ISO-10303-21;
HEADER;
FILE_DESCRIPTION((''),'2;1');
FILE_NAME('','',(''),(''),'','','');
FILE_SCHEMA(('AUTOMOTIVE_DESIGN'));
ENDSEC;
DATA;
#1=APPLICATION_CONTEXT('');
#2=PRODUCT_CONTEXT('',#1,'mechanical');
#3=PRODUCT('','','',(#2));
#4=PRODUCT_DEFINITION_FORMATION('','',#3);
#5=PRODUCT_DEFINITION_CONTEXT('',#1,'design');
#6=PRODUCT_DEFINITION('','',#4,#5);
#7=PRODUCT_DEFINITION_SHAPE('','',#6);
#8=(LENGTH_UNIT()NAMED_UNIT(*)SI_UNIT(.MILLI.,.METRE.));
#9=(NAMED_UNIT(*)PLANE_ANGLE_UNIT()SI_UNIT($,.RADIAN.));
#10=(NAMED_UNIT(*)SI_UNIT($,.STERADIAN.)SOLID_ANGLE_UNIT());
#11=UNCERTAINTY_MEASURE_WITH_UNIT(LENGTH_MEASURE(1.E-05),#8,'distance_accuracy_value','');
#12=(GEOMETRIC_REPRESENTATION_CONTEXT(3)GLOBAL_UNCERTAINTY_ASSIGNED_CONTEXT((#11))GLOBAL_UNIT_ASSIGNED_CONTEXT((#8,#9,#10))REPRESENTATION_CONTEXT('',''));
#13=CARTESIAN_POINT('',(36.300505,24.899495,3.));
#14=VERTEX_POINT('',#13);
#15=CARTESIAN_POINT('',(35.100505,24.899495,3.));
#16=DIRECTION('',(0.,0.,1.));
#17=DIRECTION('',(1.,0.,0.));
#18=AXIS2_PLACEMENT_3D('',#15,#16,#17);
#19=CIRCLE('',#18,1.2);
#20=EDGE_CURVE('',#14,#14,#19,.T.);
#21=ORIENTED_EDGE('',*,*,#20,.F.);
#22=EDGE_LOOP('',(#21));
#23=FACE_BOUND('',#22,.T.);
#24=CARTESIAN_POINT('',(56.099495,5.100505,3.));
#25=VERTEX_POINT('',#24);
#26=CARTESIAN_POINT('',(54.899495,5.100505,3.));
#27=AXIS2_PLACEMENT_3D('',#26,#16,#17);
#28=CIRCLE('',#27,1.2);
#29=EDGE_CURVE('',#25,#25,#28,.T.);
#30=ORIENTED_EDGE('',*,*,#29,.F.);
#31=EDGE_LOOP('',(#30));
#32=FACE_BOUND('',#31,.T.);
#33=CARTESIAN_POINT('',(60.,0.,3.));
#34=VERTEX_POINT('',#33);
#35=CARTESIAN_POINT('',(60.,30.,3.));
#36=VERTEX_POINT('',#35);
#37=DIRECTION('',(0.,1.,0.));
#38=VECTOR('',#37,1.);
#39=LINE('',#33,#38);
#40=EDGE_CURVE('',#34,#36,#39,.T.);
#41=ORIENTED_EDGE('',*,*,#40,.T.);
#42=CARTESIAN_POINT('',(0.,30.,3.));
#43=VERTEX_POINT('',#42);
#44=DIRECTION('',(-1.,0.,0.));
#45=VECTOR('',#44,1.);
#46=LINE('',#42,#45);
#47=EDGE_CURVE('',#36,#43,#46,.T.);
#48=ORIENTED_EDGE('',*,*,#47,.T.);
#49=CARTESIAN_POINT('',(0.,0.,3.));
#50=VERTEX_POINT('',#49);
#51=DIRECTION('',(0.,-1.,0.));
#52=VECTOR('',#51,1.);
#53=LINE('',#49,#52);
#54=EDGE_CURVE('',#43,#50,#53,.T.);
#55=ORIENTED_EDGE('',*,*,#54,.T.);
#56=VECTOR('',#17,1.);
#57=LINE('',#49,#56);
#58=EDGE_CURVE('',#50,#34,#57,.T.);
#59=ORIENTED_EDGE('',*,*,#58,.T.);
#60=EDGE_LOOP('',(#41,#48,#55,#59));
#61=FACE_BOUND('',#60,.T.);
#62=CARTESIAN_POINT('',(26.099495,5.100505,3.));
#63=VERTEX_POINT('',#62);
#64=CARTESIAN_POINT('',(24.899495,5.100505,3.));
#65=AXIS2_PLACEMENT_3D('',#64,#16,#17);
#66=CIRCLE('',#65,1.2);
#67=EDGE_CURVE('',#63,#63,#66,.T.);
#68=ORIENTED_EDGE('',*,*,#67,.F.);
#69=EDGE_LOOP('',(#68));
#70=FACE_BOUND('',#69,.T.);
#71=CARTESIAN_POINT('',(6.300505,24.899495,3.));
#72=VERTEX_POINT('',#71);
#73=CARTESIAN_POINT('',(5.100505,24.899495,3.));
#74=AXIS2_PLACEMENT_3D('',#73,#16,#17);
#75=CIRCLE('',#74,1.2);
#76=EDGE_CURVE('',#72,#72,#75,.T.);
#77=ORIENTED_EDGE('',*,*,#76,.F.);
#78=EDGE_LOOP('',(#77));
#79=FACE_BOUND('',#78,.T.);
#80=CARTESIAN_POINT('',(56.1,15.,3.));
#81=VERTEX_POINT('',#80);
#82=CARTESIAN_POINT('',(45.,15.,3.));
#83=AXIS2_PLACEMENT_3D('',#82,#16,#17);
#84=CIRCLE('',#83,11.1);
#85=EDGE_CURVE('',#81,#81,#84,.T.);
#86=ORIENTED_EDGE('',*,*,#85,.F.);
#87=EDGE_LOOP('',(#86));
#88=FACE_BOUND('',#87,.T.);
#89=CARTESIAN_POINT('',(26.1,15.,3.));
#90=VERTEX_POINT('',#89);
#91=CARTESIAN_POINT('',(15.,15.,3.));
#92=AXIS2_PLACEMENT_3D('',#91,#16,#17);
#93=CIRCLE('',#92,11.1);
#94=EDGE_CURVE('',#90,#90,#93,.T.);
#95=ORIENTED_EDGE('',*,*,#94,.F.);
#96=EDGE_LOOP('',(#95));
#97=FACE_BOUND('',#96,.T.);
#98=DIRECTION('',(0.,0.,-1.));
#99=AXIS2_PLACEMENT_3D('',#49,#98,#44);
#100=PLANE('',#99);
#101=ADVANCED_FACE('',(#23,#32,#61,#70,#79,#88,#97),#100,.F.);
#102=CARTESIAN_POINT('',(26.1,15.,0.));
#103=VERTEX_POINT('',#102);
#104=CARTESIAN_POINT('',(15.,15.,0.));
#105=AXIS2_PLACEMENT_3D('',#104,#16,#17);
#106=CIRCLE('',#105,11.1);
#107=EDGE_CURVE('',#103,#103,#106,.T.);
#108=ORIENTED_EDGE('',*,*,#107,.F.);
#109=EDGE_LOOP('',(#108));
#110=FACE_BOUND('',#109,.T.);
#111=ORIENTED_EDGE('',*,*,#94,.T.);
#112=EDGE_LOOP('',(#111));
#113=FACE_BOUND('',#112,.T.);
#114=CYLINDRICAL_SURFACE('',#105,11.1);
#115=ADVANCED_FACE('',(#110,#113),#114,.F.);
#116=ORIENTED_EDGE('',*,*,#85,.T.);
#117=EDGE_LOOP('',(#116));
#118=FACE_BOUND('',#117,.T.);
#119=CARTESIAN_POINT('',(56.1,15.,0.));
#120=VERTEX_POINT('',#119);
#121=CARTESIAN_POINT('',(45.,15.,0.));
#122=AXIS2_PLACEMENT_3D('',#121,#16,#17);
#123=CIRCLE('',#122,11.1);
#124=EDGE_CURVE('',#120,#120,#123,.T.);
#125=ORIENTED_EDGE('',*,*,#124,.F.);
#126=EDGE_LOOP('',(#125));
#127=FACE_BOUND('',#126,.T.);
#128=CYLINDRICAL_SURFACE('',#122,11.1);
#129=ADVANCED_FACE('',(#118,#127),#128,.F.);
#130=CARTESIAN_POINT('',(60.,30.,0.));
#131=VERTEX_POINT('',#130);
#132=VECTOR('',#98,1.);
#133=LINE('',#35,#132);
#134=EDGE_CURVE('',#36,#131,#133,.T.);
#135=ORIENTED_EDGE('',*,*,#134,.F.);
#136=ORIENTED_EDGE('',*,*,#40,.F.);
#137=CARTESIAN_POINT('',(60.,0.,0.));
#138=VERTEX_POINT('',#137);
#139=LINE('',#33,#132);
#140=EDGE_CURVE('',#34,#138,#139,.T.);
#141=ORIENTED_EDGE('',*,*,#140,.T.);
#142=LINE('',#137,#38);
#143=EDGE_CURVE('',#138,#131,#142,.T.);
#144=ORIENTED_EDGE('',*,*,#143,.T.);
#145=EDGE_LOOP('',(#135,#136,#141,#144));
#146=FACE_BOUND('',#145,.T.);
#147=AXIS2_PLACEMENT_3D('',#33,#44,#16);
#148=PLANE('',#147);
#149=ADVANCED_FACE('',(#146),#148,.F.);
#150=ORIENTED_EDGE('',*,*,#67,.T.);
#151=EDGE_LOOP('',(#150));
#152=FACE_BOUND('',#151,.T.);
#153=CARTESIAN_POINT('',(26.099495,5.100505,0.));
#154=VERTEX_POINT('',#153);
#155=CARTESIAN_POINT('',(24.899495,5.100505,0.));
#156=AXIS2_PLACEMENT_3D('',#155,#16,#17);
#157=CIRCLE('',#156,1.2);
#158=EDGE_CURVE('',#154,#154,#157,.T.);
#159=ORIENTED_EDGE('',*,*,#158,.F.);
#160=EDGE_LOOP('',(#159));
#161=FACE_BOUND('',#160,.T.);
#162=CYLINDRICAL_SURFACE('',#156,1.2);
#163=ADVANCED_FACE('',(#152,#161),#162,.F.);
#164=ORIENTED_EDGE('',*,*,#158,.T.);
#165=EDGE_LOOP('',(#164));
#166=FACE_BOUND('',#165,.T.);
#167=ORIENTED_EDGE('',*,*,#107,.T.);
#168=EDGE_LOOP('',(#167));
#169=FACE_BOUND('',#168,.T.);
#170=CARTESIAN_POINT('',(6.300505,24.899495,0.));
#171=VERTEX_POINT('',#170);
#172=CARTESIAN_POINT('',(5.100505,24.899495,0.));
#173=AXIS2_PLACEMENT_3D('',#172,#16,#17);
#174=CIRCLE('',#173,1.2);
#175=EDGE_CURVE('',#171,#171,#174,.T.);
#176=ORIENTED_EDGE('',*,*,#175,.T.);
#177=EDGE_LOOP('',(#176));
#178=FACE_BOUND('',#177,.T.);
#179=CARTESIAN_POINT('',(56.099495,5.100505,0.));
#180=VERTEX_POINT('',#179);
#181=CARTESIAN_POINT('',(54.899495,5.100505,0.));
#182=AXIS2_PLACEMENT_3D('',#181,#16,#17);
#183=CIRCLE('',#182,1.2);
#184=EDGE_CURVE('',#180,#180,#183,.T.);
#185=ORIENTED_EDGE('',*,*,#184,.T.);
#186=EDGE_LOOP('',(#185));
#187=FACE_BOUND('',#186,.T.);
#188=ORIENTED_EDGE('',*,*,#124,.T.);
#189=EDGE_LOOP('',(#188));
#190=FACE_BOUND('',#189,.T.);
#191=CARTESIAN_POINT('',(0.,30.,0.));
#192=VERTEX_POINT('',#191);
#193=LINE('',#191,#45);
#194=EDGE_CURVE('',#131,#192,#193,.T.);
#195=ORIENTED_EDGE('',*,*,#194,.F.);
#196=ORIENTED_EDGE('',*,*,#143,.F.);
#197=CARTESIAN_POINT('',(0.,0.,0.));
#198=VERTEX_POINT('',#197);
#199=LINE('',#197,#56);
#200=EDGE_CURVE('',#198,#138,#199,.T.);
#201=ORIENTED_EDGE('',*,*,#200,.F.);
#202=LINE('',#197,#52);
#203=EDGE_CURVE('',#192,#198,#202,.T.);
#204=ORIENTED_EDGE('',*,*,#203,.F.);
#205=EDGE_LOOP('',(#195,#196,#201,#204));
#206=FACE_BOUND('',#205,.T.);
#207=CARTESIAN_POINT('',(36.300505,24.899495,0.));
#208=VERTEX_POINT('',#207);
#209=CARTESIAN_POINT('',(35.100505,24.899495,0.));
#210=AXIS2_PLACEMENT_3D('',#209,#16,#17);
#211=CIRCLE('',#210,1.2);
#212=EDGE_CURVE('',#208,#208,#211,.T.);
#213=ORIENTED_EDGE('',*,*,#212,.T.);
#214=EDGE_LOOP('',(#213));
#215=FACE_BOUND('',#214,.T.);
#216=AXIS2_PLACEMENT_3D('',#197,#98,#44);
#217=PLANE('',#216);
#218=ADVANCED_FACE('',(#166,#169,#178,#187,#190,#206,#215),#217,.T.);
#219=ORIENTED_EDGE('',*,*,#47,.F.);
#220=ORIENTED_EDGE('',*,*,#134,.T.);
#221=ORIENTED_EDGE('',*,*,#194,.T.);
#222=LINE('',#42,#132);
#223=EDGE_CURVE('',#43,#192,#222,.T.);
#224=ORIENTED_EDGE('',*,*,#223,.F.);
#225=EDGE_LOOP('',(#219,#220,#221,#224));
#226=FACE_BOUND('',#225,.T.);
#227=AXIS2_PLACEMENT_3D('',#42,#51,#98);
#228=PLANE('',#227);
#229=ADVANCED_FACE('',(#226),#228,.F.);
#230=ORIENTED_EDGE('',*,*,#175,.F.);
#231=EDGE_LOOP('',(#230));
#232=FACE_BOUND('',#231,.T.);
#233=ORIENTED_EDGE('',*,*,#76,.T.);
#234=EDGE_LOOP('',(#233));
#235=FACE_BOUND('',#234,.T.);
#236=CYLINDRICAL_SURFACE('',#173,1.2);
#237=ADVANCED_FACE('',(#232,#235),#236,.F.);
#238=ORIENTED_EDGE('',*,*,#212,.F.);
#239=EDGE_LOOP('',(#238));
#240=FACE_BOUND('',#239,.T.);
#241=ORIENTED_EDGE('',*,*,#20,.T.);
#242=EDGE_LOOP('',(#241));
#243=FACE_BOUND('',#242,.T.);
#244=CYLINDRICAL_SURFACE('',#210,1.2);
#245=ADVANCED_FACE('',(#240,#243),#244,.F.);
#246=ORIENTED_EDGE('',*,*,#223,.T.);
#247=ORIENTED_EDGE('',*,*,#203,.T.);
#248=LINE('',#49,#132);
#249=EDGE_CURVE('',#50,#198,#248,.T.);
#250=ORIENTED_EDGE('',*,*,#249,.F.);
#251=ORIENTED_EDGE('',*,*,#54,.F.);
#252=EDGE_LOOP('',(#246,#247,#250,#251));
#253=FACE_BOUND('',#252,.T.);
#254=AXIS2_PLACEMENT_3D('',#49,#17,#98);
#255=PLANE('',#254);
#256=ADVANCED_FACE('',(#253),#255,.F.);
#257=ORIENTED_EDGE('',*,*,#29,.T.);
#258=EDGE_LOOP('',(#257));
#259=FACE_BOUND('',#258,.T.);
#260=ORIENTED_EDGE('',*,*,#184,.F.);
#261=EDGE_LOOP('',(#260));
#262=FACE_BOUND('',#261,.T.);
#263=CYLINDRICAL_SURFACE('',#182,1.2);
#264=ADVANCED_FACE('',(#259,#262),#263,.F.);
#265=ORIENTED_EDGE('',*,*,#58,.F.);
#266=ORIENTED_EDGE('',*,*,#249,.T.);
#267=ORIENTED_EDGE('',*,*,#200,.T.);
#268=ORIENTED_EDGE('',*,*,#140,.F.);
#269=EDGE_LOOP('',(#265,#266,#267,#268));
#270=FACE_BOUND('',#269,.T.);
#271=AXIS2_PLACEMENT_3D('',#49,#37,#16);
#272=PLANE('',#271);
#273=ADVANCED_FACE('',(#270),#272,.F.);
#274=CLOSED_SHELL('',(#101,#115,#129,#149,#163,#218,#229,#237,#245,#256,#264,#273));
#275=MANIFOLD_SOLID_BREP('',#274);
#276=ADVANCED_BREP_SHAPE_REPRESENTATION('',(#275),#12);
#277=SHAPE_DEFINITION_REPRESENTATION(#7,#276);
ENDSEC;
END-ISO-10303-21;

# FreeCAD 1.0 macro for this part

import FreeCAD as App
import Part
import Sketcher

V = App.Vector
Q = App.Units.Quantity

doc = App.newDocument("Part")
body = doc.addObject("PartDesign::Body", "Body")

sketch1 = body.newObject("Sketcher::SketchObject", "Sketch")
sketch1.AttachmentSupport = (doc.getObject("XY_Plane"), [""])
sketch1.MapMode = "FlatFace"
sketch1.addGeometry(Part.LineSegment(V(0, 30, 0), V(0, 0, 0)), False)
sketch1.addGeometry(Part.LineSegment(V(0, 0, 0), V(60, 0, 0)), False)
sketch1.addGeometry(Part.LineSegment(V(60, 0, 0), V(60, 30, 0)), False)
sketch1.addGeometry(Part.LineSegment(V(60, 30, 0), V(0, 30, 0)), False)
sketch1.addConstraint(Sketcher.Constraint("Coincident", 0, 2, 1, 1))
sketch1.addConstraint(Sketcher.Constraint("Coincident", 1, 2, 2, 1))
sketch1.addConstraint(Sketcher.Constraint("Coincident", 2, 2, 3, 1))
sketch1.addConstraint(Sketcher.Constraint("Coincident", 3, 2, 0, 1))
sketch1.addConstraint(Sketcher.Constraint("Vertical", 0))
sketch1.addConstraint(Sketcher.Constraint("Horizontal", 1))
sketch1.addConstraint(Sketcher.Constraint("Vertical", 2))
sketch1.addConstraint(Sketcher.Constraint("Horizontal", 3))
sketch1.addConstraint(Sketcher.Constraint("Coincident", 0, 2, -1, 1))
sketch1.addConstraint(Sketcher.Constraint("DistanceX", 1, 1, 1, 2, Q("60 mm")))
sketch1.addConstraint(Sketcher.Constraint("DistanceY", 0, 2, 0, 1, Q("30 mm")))
pad1 = body.newObject("PartDesign::Pad", "Pad")
pad1.Profile = sketch1
pad1.Length = 3

sketch2 = body.newObject("Sketcher::SketchObject", "Sketch001")
sketch2.AttachmentSupport = (doc.getObject("XY_Plane"), [""])
sketch2.MapMode = "FlatFace"
sketch2.AttachmentOffset = App.Placement(V(0, 0, 3), App.Rotation())
sketch2.addGeometry(Part.Circle(V(15, 15, 0), V(0, 0, 1), 11.1), False)
sketch2.addGeometry(Part.Circle(V(45, 15, 0), V(0, 0, 1), 11.1), False)
sketch2.addGeometry(Part.Circle(V(5.100505, 24.899495, 0), V(0, 0, 1), 1.2), False)
sketch2.addGeometry(Part.Circle(V(24.899495, 5.100505, 0), V(0, 0, 1), 1.2), False)
sketch2.addGeometry(Part.Circle(V(35.100505, 24.899495, 0), V(0, 0, 1), 1.2), False)
sketch2.addGeometry(Part.Circle(V(54.899495, 5.100505, 0), V(0, 0, 1), 1.2), False)
sketch2.addConstraint(Sketcher.Constraint("Equal", 0, 1))
sketch2.addConstraint(Sketcher.Constraint("Equal", 2, 3))
sketch2.addConstraint(Sketcher.Constraint("Equal", 3, 4))
sketch2.addConstraint(Sketcher.Constraint("Equal", 4, 5))
sketch2.addConstraint(Sketcher.Constraint("Horizontal", 0, 3, 1, 3))
sketch2.addConstraint(Sketcher.Constraint("Horizontal", 2, 3, 4, 3))
sketch2.addConstraint(Sketcher.Constraint("Horizontal", 3, 3, 5, 3))
sketch2.addConstraint(Sketcher.Constraint("Diameter", 0, Q("22.2 mm")))
sketch2.addConstraint(Sketcher.Constraint("Diameter", 2, Q("2.4 mm")))
sketch2.addConstraint(Sketcher.Constraint("DistanceX", -1, 1, 0, 3, Q("15 mm")))
sketch2.addConstraint(Sketcher.Constraint("DistanceY", -1, 1, 0, 3, Q("15 mm")))
sketch2.addConstraint(Sketcher.Constraint("DistanceX", -1, 1, 1, 3, Q("45 mm")))
sketch2.addConstraint(Sketcher.Constraint("DistanceX", 2, 3, 4, 3, Q("30 mm")))
sketch2.addConstraint(Sketcher.Constraint("DistanceX", 3, 3, 5, 3, Q("30 mm")))
sketch2.addConstraint(Sketcher.Constraint("DistanceX", 2, 3, 3, 3, Q("19.79899 mm")))
sketch2.addConstraint(Sketcher.Constraint("DistanceY", 3, 3, 2, 3, Q("19.79899 mm")))
sketch2.addConstraint(Sketcher.Constraint("DistanceX", -1, 1, 2, 3, Q("5.100505 mm")))
sketch2.addConstraint(Sketcher.Constraint("DistanceY", -1, 1, 2, 3, Q("24.899495 mm")))
pocket1 = body.newObject("PartDesign::Pocket", "Pocket")
pocket1.Profile = sketch2
pocket1.Type = "ThroughAll"

doc.recompute()
